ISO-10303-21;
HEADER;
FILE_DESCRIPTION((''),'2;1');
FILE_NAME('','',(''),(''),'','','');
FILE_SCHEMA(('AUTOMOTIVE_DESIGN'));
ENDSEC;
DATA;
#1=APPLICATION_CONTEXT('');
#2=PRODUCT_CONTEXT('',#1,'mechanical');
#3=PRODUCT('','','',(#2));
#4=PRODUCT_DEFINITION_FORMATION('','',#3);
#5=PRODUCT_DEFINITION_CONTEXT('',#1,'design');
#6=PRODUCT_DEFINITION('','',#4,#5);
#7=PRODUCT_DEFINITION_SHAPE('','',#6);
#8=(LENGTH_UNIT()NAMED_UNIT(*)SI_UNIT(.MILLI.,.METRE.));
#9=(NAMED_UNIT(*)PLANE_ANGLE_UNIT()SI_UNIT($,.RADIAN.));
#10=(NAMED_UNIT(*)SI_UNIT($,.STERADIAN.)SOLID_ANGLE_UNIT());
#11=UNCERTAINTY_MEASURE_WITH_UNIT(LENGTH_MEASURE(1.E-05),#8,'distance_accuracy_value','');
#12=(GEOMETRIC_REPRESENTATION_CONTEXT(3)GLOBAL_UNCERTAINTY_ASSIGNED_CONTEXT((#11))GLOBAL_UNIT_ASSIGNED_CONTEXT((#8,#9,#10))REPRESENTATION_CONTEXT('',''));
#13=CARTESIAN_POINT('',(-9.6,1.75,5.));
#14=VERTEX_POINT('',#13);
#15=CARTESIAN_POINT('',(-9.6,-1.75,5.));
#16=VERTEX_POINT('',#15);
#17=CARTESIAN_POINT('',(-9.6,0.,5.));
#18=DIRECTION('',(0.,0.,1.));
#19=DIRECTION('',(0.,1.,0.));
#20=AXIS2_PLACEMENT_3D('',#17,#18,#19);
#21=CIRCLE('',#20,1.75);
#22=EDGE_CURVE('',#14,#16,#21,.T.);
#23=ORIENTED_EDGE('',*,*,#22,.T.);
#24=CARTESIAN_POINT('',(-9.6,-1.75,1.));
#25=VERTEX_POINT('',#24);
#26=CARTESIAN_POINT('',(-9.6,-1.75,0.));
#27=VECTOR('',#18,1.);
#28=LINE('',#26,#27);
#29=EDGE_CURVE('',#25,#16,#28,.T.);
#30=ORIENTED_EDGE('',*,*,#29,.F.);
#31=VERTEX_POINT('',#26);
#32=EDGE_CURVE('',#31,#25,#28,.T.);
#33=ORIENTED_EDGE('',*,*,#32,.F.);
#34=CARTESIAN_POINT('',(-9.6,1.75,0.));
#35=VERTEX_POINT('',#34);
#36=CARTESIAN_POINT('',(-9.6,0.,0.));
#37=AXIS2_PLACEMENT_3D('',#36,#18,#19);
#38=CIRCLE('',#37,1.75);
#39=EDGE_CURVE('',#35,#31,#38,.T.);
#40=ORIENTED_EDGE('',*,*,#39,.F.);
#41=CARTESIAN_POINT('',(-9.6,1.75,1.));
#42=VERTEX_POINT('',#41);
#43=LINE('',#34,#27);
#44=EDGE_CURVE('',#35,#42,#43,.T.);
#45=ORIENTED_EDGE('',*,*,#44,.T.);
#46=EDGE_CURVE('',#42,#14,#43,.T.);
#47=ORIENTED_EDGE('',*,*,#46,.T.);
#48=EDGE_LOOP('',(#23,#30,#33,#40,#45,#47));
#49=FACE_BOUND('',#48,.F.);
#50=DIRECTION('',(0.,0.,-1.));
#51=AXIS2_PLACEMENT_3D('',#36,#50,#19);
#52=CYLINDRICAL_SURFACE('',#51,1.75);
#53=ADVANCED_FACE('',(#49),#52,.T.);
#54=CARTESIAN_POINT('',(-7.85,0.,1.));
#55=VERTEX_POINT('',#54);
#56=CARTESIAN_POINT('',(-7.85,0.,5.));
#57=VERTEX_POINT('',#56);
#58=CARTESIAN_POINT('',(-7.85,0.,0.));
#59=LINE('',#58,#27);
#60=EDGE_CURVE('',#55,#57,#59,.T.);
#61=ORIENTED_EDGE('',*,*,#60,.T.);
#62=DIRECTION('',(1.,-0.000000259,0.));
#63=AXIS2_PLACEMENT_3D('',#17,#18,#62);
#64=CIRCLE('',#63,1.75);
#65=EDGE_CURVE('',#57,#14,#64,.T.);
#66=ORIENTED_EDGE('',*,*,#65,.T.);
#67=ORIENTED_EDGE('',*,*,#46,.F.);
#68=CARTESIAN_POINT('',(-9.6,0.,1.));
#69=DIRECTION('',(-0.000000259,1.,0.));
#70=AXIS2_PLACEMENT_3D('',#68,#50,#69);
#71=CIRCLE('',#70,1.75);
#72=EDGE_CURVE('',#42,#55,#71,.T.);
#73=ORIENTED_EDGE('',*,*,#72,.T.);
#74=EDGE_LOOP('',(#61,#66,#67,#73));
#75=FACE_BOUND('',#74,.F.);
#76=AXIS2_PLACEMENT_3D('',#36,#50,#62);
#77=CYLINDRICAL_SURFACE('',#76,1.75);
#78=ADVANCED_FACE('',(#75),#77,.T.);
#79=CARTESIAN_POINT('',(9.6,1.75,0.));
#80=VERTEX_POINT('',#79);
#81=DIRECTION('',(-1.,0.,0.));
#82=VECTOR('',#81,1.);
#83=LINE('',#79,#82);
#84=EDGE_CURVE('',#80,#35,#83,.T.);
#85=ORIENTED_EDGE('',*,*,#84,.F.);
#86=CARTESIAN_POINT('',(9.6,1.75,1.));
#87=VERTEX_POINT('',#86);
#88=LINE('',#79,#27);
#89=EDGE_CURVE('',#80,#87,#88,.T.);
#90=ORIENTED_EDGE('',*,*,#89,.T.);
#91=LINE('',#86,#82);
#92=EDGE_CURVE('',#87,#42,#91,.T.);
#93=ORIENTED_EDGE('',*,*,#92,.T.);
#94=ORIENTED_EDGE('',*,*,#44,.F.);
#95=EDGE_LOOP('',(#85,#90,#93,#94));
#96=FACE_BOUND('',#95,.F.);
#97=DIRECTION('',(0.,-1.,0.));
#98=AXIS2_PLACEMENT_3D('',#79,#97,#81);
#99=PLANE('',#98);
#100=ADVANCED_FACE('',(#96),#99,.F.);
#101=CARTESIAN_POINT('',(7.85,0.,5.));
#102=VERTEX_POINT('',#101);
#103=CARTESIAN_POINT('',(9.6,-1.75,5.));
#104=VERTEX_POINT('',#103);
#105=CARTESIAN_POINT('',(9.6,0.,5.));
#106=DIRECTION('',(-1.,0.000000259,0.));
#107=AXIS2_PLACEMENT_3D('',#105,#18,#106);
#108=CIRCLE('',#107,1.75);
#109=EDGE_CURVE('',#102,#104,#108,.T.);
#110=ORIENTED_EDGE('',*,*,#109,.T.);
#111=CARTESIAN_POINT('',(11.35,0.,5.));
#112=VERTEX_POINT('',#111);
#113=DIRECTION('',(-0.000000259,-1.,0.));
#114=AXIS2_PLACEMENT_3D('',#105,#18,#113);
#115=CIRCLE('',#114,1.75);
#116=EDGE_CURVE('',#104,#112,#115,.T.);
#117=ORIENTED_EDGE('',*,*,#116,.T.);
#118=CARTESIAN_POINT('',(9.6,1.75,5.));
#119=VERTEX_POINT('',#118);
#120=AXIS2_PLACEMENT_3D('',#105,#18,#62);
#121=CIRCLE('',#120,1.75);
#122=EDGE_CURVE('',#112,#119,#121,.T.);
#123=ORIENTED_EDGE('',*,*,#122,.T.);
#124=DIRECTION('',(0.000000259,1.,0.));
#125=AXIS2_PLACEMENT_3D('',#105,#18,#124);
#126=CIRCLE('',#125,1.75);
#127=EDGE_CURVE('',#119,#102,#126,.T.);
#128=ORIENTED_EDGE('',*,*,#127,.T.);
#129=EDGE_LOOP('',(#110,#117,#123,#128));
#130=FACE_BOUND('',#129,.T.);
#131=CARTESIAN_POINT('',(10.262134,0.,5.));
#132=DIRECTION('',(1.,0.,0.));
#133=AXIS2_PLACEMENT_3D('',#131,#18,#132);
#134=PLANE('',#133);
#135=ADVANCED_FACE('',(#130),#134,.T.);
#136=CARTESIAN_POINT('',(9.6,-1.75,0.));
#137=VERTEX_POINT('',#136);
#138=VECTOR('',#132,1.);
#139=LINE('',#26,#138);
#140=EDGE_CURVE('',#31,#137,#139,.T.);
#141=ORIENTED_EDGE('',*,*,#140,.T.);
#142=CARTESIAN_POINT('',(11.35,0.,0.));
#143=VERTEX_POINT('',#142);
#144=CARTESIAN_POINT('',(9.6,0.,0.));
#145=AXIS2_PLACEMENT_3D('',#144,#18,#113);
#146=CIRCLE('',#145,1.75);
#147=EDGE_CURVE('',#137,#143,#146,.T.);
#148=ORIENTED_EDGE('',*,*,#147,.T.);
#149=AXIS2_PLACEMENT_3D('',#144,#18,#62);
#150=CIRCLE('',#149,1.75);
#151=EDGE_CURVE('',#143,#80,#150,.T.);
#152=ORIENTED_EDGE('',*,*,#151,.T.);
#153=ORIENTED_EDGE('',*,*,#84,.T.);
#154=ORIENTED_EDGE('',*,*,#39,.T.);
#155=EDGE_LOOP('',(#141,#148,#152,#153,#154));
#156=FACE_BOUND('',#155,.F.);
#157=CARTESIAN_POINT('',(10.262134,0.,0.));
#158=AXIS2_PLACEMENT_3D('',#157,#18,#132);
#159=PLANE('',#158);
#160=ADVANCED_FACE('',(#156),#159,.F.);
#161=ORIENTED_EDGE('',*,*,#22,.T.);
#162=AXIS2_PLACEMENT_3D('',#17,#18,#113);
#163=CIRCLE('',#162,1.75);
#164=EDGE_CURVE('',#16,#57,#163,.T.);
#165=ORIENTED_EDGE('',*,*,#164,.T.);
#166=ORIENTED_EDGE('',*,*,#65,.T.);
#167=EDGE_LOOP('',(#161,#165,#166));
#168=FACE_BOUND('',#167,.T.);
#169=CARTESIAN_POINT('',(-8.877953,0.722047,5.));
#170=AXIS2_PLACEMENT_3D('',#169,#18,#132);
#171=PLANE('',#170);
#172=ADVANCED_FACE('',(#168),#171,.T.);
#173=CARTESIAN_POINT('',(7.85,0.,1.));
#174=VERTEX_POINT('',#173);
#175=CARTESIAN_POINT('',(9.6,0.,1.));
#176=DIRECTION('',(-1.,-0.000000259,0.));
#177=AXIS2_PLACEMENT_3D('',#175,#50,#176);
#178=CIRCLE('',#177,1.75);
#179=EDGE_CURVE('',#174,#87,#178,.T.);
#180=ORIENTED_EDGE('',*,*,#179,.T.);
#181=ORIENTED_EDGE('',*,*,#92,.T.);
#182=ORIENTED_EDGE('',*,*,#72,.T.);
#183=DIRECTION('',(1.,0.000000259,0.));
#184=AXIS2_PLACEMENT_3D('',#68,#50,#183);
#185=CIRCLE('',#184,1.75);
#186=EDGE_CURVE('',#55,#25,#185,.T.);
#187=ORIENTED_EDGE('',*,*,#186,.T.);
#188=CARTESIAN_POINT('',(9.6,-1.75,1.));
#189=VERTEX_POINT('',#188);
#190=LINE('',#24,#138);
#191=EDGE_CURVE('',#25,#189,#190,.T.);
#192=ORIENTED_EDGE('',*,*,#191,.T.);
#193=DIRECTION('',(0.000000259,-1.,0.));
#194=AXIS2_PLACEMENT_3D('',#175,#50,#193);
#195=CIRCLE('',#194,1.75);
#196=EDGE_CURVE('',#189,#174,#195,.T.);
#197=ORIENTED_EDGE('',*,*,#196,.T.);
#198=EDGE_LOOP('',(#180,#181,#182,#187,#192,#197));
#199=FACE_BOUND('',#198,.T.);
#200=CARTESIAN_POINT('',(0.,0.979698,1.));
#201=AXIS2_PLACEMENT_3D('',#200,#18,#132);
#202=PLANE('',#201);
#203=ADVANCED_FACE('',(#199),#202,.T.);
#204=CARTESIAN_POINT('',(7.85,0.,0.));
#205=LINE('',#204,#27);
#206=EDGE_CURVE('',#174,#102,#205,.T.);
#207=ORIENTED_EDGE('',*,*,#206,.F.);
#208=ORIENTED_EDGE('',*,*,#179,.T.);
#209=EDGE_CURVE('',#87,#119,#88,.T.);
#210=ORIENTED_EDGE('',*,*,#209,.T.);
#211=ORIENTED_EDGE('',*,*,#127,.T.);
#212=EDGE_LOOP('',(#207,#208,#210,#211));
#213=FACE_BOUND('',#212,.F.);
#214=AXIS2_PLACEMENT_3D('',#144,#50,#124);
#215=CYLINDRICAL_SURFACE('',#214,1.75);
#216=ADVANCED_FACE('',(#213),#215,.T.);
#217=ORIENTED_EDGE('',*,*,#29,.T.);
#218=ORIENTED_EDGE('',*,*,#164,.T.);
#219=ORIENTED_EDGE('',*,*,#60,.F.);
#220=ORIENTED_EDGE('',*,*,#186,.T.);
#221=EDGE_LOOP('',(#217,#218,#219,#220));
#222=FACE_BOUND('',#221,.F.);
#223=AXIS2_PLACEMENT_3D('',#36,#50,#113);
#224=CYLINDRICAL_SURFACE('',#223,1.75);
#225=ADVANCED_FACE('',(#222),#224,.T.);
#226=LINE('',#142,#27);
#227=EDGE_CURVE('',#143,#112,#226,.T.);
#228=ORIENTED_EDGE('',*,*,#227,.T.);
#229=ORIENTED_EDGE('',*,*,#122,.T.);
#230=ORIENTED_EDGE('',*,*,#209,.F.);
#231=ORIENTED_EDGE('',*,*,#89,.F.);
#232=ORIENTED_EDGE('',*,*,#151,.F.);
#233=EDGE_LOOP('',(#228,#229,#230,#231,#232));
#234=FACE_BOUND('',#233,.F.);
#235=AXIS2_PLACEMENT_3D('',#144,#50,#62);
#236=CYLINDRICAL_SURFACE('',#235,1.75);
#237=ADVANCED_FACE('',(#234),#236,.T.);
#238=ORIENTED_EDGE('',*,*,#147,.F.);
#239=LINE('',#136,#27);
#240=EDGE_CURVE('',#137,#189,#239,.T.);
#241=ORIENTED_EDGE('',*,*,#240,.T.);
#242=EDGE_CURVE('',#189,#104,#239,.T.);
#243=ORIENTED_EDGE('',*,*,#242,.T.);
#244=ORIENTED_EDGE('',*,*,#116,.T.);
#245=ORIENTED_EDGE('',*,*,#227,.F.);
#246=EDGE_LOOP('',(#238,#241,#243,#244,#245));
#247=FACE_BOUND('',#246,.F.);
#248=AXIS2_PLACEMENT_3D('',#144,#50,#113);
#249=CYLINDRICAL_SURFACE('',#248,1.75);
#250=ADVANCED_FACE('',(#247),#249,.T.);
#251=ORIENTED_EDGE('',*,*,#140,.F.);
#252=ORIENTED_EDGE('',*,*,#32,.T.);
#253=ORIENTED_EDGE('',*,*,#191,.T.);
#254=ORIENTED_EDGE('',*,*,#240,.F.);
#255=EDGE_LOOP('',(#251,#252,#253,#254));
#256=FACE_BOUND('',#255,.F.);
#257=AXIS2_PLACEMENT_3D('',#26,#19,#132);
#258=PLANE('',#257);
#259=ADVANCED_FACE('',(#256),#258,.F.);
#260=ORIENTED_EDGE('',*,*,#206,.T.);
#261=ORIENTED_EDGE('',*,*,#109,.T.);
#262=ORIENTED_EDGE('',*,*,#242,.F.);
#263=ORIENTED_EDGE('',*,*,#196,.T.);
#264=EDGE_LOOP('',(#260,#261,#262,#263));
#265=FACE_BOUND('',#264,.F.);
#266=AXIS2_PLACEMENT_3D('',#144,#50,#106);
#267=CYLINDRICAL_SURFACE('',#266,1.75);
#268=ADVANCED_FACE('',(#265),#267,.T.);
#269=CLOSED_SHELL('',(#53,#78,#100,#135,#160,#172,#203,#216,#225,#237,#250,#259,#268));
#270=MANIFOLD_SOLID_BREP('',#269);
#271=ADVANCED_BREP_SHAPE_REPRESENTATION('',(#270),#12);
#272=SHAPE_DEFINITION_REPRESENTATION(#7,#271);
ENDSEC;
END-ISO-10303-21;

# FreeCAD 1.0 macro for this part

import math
import FreeCAD as App
import Part
import Sketcher

doc = App.newDocument("Part")
params = doc.addObject("Spreadsheet::Sheet", "Params")
for row, (alias, value) in enumerate([
    ("sketch1_radius", "1.75 mm"),
    ("sketch1_width", "19.2 mm"),
    ("pad1_length", "1 mm"),
    ("sketch2_radius", "1.75 mm"),
    ("pad2_length", "5 mm"),
], start=1):
    params.set(f"A{row}", alias)
    params.set(f"B{row}", "=" + value)
    params.setAlias(f"B{row}", alias)

body = doc.addObject("PartDesign::Body", "Body")

# Sketch on XY plane
sketch1 = body.newObject("Sketcher::SketchObject", "Sketch")
sketch1.AttachmentSupport = (doc.getObject("XY_Plane"), [""])
sketch1.MapMode = "FlatFace"
sketch1.addGeometry([
    Part.ArcOfCircle(Part.Circle(App.Vector(-9.6, 0, 0), App.Vector(0, 0, 1), 1.7), math.radians(0), math.radians(90)),  # 0
    Part.ArcOfCircle(Part.Circle(App.Vector(-9.6, 0, 0), App.Vector(0, 0, 1), 1.7), math.radians(-90), math.radians(0)),  # 1
    Part.LineSegment(App.Vector(-9.6, -1.8, 0), App.Vector(9.6, -1.8, 0)),  # 2
    Part.ArcOfCircle(Part.Circle(App.Vector(9.6, 0, 0), App.Vector(0, 0, 1), 1.7), math.radians(180), math.radians(270)),  # 3
    Part.ArcOfCircle(Part.Circle(App.Vector(9.6, 0, 0), App.Vector(0, 0, 1), 1.7), math.radians(90), math.radians(180)),  # 4
    Part.LineSegment(App.Vector(9.6, 1.8, 0), App.Vector(-9.6, 1.8, 0)),  # 5
], False)
sketch1.addConstraint([
    Sketcher.Constraint("Tangent", 0, 1, 1, 2),
    Sketcher.Constraint("Tangent", 1, 1, 2, 1),
    Sketcher.Constraint("Tangent", 2, 2, 3, 2),
    Sketcher.Constraint("Tangent", 3, 1, 4, 2),
    Sketcher.Constraint("Tangent", 4, 1, 5, 1),
    Sketcher.Constraint("Tangent", 5, 2, 0, 2),
    Sketcher.Constraint("Horizontal", 2),
    Sketcher.Constraint("Horizontal", 5),
    Sketcher.Constraint("Equal", 0, 1),
    Sketcher.Constraint("Equal", 1, 3),
    Sketcher.Constraint("Symmetric", 0, 3, 3, 3, -1, 1),
    Sketcher.Constraint("PointOnObject", 0, 1, -1),
    Sketcher.Constraint("PointOnObject", 3, 1, -1),
    Sketcher.Constraint("Radius", 0, 1.75),
    Sketcher.Constraint("DistanceX", 2, 1, 2, 2, 19.2),
])
sketch1.setExpression("Constraints[13]", "Params.sketch1_radius")
sketch1.setExpression("Constraints[14]", "Params.sketch1_width")
pad1 = body.newObject("PartDesign::Pad", "Pad")
pad1.Profile = sketch1
pad1.setExpression("Length", "Params.pad1_length")

# Sketch on XY plane
sketch2 = body.newObject("Sketcher::SketchObject", "Sketch001")
sketch2.AttachmentSupport = (doc.getObject("XY_Plane"), [""])
sketch2.MapMode = "FlatFace"
sketch2.addGeometry([
    Part.ArcOfCircle(Part.Circle(App.Vector(9.6, 0, 0), App.Vector(0, 0, 1), 1.7), math.radians(-90), math.radians(0)),  # 0
    Part.ArcOfCircle(Part.Circle(App.Vector(9.6, 0, 0), App.Vector(0, 0, 1), 1.7), math.radians(0), math.radians(90)),  # 1
    Part.ArcOfCircle(Part.Circle(App.Vector(9.6, 0, 0), App.Vector(0, 0, 1), 1.7), math.radians(90), math.radians(180)),  # 2
    Part.ArcOfCircle(Part.Circle(App.Vector(9.6, 0, 0), App.Vector(0, 0, 1), 1.7), math.radians(180), math.radians(270)),  # 3
    Part.ArcOfCircle(Part.Circle(App.Vector(-9.6, 0, 0), App.Vector(0, 0, 1), 1.7), math.radians(0), math.radians(90)),  # 4
    Part.ArcOfCircle(Part.Circle(App.Vector(-9.6, 0, 0), App.Vector(0, 0, 1), 1.8), math.radians(90), math.radians(270)),  # 5
    Part.ArcOfCircle(Part.Circle(App.Vector(-9.6, 0, 0), App.Vector(0, 0, 1), 1.7), math.radians(-90), math.radians(0)),  # 6
], False)
sketch2.addConstraint([
    Sketcher.Constraint("Tangent", 0, 2, 1, 1),
    Sketcher.Constraint("Tangent", 1, 2, 2, 1),
    Sketcher.Constraint("Tangent", 2, 2, 3, 1),
    Sketcher.Constraint("Tangent", 3, 2, 0, 1),
    Sketcher.Constraint("Tangent", 4, 2, 5, 1),
    Sketcher.Constraint("Tangent", 5, 2, 6, 1),
    Sketcher.Constraint("Tangent", 6, 2, 4, 1),
    Sketcher.Constraint("Equal", 0, 1),
    Sketcher.Constraint("Equal", 3, 4),
    Sketcher.Constraint("Symmetric", 0, 3, 4, 3, -1, 1),
    Sketcher.Constraint("Symmetric", 1, 2, 4, 2, -2),
    Sketcher.Constraint("PointOnObject", 0, 2, -1),
    Sketcher.Constraint("PointOnObject", 2, 2, -1),
    Sketcher.Constraint("PointOnObject", 6, 2, -1),
    Sketcher.Constraint("Vertical", 3, 3, 1, 2),
    Sketcher.Constraint("Vertical", 1, 2, 3, 2),
    Sketcher.Constraint("Vertical", 4, 2, 5, 2),
    Sketcher.Constraint("Radius", 0, 1.75),
    Sketcher.Constraint("DistanceX", -1, 1, 0, 3, 9.6),
])
sketch2.setExpression("Constraints[17]", "Params.sketch2_radius")
pad2 = body.newObject("PartDesign::Pad", "Pad001")
pad2.Profile = sketch2
pad2.setExpression("Length", "Params.pad2_length")

doc.recompute()
